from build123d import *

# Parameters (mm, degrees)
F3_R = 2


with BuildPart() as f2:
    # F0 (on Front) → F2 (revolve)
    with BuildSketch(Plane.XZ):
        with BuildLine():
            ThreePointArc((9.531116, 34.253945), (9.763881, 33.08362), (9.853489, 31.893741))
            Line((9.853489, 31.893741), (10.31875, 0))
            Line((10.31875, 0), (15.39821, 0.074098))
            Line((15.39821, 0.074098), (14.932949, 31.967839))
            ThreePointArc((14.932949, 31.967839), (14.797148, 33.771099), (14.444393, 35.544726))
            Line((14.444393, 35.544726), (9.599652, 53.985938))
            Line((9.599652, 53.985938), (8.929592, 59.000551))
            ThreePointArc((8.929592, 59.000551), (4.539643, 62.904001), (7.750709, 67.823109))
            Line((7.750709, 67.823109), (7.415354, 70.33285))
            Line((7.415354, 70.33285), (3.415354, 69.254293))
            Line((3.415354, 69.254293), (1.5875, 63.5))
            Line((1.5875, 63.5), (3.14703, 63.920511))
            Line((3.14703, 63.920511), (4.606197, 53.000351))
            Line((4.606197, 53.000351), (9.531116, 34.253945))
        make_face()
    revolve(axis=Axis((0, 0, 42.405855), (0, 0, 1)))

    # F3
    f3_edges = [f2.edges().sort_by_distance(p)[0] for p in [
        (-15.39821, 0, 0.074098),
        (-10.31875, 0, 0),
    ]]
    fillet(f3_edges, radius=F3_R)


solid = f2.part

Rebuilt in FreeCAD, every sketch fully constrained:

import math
import FreeCAD as App
import Part
import Sketcher


def edges_at(feature, points):
    """Names of the edges that pass closest to the given points."""
    edges = feature.Shape.Edges
    near = lambda p: min(range(len(edges)), key=lambda i: edges[i].distToShape(Part.Vertex(*p))[0])
    return sorted({f"Edge{near(p) + 1}" for p in points})

doc = App.newDocument("Part")
body = doc.addObject("PartDesign::Body", "Body")

sketch1 = body.newObject("Sketcher::SketchObject", "Sketch")
sketch1.AttachmentSupport = (doc.getObject("XZ_Plane"), [""])
sketch1.MapMode = "FlatFace"
sketch1.addGeometry([
    Part.ArcOfCircle(Part.Circle(App.Vector(0.000032, 31.750006, 0), App.Vector(0, 0, 1), 9.854506), math.radians(0.835732), math.radians(14.719719)),
    Part.LineSegment(App.Vector(9.853489, 31.893741, 0), App.Vector(10.31875, 0, 0)),
    Part.LineSegment(App.Vector(10.31875, 0, 0), App.Vector(15.39821, 0.074098, 0)),
    Part.LineSegment(App.Vector(15.39821, 0.074098, 0), App.Vector(14.932949, 31.967839, 0)),
    Part.ArcOfCircle(Part.Circle(App.Vector(0.000013, 31.750004, 0), App.Vector(0, 0, 1), 14.934524), math.radians(0.835746), math.radians(14.719705)),
    Part.LineSegment(App.Vector(14.444393, 35.544726, 0), App.Vector(9.599652, 53.985938, 0)),
    Part.LineSegment(App.Vector(9.599652, 53.985938, 0), App.Vector(8.929592, 59.000551, 0)),
    Part.ArcOfCircle(Part.Circle(App.Vector(9, 63.5, 0), App.Vector(0, 0, 1), 4.5), math.radians(106.118223), math.radians(269.103502)),
    Part.LineSegment(App.Vector(7.750709, 67.823109, 0), App.Vector(7.415354, 70.33285, 0)),
    Part.LineSegment(App.Vector(7.415354, 70.33285, 0), App.Vector(3.415354, 69.254293, 0)),
    Part.LineSegment(App.Vector(3.415354, 69.254293, 0), App.Vector(1.5875, 63.5, 0)),
    Part.LineSegment(App.Vector(1.5875, 63.5, 0), App.Vector(3.14703, 63.920511, 0)),
    Part.LineSegment(App.Vector(3.14703, 63.920511, 0), App.Vector(4.606197, 53.000351, 0)),
    Part.LineSegment(App.Vector(4.606197, 53.000351, 0), App.Vector(9.531116, 34.253945, 0)),
], False)
sketch1.addConstraint([
    Sketcher.Constraint("Tangent", 0, 1, 1, 1),
    Sketcher.Constraint("Coincident", 1, 2, 2, 1),
    Sketcher.Constraint("Coincident", 2, 2, 3, 1),
    Sketcher.Constraint("Tangent", 3, 2, 4, 1),
    Sketcher.Constraint("Tangent", 4, 2, 5, 1),
    Sketcher.Constraint("Coincident", 5, 2, 6, 1),
    Sketcher.Constraint("Coincident", 6, 2, 7, 2),
    Sketcher.Constraint("Coincident", 7, 1, 8, 1),
    Sketcher.Constraint("Coincident", 8, 2, 9, 1),
    Sketcher.Constraint("Coincident", 9, 2, 10, 1),
    Sketcher.Constraint("Coincident", 10, 2, 11, 1),
    Sketcher.Constraint("Coincident", 11, 2, 12, 1),
    Sketcher.Constraint("Coincident", 12, 2, 13, 1),
    Sketcher.Constraint("Tangent", 13, 2, 0, 2),
    Sketcher.Constraint("PointOnObject", 1, 2, -1),
    Sketcher.Constraint("Perpendicular", 1, 2),
    Sketcher.Constraint("Perpendicular", 2, 3),
    Sketcher.Constraint("Parallel", 6, 8),
    Sketcher.Constraint("Parallel", 9, 11),
    Sketcher.Constraint("Parallel", 8, 12),
    Sketcher.Constraint("Parallel", 5, 13),
    Sketcher.Constraint("Horizontal", 0, 3, 4, 3),
    Sketcher.Constraint("Horizontal", 7, 3, 10, 2),
    Sketcher.Constraint("Equal", 1, 3),
    Sketcher.Constraint("Radius", 7, 4.5),
    Sketcher.Constraint("DistanceX", -1, 1, 7, 3, 9.0),
    Sketcher.Constraint("DistanceX", 9, 2, 8, 2, 4.0),
    Sketcher.Constraint("DistanceY", -1, 1, 7, 3, 63.5),
    Sketcher.Constraint("Distance", 2, 5.08),
    Sketcher.Constraint("Radius", 0, 9.854506),
    Sketcher.Constraint("DistanceX", -1, 1, 10, 2, 1.5875),
    Sketcher.Constraint("DistanceY", 0, 1, 3, 2, 0.074098),
    Sketcher.Constraint("DistanceY", 3, 2, 5, 2, 22.018099),
    Sketcher.Constraint("DistanceX", 6, 2, 4, 2, 5.514801),
    Sketcher.Constraint("DistanceY", 6, 2, 8, 2, 11.332299),
    Sketcher.Constraint("DistanceX", 8, 2, 5, 2, 2.184298),
    Sketcher.Constraint("DistanceY", 12, 2, 6, 2, 6.0002),
    Sketcher.Constraint("Distance", 9, 4.14286),
    Sketcher.Constraint("Distance", 11, 1.615229),
    Sketcher.Constraint("DistanceX", -1, 1, 0, 1, 9.853489),
    Sketcher.Constraint("DistanceY", -1, 1, 0, 1, 31.893741),
])
revolution = body.newObject("PartDesign::Revolution", "Revolution")
revolution.Profile = sketch1
revolution.ReferenceAxis = (sketch1, ["V_Axis"])
revolution.Angle = 360
doc.recompute()

fillet = body.newObject("PartDesign::Fillet", "Fillet")
fillet.Base = (revolution, edges_at(revolution, [(-15.398, 0, 0.074), (-10.319, 0, 0)]))
fillet.Radius = 2

doc.recompute()
